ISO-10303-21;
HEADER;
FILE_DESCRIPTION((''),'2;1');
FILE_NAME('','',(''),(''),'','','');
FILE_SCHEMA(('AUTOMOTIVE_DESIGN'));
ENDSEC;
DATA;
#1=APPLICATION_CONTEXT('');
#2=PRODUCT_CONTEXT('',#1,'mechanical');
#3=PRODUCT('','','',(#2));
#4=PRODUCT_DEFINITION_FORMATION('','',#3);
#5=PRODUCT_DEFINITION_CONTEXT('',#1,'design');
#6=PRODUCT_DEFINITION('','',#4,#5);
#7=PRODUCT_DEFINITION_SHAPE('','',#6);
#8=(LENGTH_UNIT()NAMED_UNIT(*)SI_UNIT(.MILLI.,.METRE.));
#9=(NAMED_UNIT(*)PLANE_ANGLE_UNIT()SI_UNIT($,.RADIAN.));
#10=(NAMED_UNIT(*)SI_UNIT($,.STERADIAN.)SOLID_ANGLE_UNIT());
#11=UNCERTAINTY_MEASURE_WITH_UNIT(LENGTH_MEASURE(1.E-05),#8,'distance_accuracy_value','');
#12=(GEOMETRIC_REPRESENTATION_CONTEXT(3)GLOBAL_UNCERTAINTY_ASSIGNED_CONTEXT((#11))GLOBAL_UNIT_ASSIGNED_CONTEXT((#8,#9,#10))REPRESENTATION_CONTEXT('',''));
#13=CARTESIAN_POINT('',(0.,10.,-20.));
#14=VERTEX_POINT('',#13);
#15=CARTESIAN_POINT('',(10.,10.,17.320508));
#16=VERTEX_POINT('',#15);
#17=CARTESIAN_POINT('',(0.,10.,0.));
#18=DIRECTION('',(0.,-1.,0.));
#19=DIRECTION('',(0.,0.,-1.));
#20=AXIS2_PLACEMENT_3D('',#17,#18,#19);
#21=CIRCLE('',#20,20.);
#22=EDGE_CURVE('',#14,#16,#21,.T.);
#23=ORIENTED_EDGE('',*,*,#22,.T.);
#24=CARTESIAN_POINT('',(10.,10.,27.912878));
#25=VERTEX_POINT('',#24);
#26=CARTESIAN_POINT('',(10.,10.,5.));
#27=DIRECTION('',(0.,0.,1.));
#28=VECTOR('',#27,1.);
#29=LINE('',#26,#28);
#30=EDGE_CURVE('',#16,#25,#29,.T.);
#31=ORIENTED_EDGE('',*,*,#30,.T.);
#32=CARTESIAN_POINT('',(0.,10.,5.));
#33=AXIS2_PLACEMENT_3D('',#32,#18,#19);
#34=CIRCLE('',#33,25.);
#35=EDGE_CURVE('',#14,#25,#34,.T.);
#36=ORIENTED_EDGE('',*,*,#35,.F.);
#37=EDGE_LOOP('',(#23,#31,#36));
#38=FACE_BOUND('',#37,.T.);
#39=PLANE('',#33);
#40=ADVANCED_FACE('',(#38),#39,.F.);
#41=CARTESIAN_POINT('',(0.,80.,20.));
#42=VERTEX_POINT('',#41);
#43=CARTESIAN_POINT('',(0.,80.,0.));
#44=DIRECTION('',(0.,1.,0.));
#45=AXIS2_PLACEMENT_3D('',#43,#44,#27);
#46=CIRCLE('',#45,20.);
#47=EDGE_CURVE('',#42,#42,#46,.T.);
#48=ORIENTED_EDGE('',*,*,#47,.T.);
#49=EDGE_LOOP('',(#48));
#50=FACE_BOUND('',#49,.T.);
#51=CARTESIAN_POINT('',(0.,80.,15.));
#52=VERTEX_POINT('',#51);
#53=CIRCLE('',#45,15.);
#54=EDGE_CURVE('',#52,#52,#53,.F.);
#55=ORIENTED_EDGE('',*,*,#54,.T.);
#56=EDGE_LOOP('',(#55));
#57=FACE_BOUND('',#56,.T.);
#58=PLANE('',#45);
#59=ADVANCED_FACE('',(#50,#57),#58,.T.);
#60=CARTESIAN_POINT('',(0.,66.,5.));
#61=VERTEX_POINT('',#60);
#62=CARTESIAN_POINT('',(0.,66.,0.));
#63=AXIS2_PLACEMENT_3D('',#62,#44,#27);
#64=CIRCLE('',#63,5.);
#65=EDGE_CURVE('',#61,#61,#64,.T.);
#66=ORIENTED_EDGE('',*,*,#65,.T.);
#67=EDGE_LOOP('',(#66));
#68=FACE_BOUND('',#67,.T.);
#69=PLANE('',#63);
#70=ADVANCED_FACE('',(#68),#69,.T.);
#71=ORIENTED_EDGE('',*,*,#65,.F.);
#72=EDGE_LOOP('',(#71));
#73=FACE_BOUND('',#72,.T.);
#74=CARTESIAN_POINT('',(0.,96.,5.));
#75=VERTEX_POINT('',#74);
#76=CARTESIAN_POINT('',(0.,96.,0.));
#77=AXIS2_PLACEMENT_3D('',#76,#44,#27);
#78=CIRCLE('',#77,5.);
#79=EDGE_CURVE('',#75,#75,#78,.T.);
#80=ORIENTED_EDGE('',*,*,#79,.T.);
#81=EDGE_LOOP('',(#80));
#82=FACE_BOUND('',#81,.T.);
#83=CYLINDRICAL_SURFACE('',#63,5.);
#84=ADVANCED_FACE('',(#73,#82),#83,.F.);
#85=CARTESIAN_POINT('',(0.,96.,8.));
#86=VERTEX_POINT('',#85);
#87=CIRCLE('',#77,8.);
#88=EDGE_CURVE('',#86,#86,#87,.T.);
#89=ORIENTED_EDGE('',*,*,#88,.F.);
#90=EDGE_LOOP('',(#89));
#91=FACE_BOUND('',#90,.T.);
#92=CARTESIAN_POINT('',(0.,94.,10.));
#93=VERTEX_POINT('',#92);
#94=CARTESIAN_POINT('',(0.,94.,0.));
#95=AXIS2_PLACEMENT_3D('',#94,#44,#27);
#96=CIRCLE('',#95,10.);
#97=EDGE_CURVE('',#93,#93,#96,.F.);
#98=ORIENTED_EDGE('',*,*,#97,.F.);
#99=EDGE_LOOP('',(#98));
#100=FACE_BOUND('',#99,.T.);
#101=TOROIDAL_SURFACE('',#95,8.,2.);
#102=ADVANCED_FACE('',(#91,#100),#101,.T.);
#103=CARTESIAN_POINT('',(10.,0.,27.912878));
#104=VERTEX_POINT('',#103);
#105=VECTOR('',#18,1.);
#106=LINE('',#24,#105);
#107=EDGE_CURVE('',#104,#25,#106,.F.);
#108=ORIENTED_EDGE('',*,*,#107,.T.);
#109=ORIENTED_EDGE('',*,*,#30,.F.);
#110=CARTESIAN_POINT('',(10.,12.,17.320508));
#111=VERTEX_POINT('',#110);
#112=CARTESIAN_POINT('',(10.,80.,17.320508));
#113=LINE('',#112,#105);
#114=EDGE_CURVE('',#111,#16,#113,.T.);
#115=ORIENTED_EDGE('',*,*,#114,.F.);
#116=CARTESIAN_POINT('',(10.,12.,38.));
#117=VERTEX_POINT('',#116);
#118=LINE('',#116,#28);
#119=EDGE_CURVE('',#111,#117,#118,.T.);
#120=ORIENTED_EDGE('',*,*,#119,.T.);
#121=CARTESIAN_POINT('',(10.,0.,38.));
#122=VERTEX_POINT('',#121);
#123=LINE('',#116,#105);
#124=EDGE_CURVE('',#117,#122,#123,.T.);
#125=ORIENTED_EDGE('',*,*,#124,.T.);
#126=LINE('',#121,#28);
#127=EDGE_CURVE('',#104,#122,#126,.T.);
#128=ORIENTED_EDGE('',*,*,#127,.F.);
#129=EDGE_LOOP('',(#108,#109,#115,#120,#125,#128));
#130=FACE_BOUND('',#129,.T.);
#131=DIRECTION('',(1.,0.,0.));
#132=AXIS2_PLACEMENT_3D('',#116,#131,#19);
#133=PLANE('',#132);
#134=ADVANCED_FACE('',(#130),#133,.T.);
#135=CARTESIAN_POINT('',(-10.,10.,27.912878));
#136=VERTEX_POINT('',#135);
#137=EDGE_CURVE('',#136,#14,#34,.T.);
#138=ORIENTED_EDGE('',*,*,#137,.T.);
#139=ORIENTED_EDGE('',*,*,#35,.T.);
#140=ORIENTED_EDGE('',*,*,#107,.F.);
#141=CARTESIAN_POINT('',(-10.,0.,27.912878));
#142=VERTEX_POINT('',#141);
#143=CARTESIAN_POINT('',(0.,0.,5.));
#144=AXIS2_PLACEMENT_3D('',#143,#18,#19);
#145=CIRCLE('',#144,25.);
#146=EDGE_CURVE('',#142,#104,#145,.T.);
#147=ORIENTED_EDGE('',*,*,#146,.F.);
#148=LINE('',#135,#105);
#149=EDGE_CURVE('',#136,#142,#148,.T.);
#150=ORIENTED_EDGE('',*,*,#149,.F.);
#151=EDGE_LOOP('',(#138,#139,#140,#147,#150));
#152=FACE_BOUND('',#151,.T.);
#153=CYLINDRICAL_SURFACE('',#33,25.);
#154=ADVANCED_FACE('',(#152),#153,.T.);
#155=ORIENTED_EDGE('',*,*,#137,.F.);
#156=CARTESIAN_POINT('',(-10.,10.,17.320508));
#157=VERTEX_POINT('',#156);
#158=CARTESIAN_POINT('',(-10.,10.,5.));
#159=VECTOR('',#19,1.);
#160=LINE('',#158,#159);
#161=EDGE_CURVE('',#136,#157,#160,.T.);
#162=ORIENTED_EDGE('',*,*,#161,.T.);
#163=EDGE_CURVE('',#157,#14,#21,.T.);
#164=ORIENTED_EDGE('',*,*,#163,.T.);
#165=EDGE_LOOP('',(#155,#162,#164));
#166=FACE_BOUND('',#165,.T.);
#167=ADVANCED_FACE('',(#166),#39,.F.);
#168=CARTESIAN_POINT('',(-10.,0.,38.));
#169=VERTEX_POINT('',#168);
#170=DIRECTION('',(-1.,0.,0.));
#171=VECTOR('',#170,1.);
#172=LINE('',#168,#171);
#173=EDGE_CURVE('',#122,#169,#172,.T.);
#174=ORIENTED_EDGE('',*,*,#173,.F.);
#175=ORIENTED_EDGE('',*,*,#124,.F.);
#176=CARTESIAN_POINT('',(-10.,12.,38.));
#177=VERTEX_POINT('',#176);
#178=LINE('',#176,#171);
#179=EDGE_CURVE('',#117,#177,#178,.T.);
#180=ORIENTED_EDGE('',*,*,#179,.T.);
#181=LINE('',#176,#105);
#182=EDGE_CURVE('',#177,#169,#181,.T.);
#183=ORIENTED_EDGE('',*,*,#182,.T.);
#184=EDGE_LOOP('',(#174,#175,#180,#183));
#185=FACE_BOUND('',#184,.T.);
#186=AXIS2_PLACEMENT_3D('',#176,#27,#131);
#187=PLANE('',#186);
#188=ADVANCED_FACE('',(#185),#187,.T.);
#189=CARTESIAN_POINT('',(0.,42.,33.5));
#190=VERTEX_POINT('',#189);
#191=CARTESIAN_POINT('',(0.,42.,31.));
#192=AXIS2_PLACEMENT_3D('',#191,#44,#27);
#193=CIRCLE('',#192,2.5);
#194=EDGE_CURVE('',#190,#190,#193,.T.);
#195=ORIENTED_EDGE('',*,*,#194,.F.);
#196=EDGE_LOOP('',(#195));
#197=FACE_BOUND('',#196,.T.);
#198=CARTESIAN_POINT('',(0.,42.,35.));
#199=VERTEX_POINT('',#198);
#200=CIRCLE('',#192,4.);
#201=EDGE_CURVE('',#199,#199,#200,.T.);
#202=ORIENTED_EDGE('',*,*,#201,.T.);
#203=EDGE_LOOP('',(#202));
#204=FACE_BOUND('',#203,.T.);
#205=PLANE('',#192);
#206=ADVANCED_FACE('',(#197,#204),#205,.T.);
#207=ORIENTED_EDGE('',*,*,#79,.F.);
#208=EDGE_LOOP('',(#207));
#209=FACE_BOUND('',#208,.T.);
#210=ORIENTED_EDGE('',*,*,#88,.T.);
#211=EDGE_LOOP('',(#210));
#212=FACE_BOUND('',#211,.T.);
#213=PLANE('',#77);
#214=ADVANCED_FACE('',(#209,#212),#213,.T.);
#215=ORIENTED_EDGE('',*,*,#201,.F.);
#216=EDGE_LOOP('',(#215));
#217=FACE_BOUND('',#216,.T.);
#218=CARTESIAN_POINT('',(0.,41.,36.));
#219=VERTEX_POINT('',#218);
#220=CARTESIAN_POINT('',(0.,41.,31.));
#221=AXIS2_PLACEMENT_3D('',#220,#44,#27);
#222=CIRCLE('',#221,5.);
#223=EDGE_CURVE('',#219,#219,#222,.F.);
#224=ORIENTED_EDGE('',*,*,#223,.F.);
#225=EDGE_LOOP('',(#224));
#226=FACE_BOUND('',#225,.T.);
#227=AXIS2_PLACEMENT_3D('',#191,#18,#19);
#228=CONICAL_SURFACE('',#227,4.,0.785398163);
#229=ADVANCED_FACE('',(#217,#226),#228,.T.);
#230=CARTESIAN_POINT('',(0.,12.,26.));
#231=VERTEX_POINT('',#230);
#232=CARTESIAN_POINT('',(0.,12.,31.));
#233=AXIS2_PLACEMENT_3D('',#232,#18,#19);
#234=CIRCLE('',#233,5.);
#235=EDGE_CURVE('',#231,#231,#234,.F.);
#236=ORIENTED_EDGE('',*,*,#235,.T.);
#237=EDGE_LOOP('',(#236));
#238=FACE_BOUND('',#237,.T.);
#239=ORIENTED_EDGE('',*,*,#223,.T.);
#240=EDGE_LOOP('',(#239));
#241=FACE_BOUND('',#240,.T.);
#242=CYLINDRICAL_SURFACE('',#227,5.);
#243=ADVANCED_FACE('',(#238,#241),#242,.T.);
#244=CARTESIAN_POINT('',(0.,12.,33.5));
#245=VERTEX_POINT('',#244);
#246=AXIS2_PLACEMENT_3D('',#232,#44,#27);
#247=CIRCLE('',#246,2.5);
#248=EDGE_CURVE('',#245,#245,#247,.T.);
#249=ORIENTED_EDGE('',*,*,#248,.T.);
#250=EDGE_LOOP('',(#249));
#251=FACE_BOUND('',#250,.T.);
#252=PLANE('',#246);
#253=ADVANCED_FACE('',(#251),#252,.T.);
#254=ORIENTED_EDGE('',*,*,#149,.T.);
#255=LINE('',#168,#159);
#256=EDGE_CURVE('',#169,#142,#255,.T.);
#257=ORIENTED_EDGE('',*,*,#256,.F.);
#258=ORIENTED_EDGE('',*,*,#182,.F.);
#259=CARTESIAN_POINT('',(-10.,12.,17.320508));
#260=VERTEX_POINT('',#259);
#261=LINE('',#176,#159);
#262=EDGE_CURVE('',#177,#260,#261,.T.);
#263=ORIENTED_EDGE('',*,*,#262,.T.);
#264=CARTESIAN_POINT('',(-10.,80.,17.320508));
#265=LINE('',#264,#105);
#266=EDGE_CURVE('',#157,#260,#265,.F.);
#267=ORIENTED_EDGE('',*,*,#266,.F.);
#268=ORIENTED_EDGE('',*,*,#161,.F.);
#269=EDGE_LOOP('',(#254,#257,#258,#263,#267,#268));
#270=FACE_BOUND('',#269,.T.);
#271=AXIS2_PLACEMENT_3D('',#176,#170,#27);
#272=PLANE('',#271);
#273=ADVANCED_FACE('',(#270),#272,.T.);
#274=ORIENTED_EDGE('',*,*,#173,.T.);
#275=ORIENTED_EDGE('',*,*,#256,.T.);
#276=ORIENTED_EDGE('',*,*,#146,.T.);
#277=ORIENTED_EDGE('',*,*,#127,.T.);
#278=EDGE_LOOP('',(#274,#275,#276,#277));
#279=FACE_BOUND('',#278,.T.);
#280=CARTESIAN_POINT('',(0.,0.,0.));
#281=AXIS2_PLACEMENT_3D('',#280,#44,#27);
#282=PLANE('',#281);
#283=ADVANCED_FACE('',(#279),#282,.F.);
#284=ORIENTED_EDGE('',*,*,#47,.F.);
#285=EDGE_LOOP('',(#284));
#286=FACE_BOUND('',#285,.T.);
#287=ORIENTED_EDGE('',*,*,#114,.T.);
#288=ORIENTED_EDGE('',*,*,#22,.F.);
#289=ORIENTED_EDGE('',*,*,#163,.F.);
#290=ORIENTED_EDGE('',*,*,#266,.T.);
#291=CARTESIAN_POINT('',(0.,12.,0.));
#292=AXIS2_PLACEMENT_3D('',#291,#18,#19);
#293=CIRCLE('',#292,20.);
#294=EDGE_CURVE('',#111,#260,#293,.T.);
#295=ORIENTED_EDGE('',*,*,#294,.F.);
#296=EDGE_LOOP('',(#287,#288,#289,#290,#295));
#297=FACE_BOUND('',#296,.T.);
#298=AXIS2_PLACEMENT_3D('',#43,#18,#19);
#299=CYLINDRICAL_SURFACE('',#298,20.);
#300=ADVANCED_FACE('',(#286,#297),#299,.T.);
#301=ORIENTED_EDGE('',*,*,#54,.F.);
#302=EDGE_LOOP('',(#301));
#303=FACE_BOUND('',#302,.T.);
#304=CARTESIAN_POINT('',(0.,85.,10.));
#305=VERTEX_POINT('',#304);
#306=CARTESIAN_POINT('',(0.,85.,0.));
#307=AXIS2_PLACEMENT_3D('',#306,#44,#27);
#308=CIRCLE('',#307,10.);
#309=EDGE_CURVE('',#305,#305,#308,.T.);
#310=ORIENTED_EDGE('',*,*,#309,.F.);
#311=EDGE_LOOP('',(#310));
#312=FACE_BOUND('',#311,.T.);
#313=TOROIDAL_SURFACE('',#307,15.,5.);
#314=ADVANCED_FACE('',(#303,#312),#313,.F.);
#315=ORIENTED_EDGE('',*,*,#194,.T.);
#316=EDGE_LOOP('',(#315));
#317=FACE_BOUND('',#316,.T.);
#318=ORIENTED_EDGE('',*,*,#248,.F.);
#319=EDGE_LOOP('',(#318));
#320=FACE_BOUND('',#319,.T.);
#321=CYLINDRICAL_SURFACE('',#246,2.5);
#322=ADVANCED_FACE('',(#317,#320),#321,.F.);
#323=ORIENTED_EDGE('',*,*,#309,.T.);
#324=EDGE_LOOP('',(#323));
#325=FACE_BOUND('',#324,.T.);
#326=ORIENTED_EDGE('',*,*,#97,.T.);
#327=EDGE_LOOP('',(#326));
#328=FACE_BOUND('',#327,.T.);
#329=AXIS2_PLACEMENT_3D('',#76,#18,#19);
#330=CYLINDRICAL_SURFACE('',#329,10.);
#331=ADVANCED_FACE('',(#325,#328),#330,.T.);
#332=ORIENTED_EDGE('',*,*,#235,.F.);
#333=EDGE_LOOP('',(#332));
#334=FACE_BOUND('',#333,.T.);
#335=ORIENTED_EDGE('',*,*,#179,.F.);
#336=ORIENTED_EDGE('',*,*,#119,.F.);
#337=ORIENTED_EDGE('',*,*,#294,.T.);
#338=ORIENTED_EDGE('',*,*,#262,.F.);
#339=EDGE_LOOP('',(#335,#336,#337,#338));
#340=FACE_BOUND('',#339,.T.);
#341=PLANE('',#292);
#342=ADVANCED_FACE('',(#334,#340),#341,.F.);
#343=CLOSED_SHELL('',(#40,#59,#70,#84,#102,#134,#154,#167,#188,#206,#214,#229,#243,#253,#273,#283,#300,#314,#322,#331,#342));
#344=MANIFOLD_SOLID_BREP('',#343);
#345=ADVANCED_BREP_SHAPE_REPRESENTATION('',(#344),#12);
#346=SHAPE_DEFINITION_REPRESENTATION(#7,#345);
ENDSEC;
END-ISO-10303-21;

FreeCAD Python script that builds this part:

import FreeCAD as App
import Part
import Sketcher
from FreeCAD import Vector


def edges_at(feature, points):
    """Names of the edges that pass closest to the given points."""
    edges = feature.Shape.Edges
    near = lambda p: min(range(len(edges)), key=lambda i: edges[i].distToShape(Part.Vertex(*p))[0])
    return sorted({f"Edge{near(p) + 1}" for p in points})

doc = App.newDocument("Part")
body = doc.addObject("PartDesign::Body", "Body")

sketch1 = body.newObject("Sketcher::SketchObject", "Sketch")
sketch1.AttachmentSupport = (doc.getObject("XZ_Plane"), [""])
sketch1.MapMode = "FlatFace"
sketch1.addGeometry(Part.Circle(Vector(0, 0, 0), Vector(0, 0, 1), 20), False)
sketch1.addConstraint([
    Sketcher.Constraint("Coincident", 0, 3, -1, 1),
    Sketcher.Constraint("Diameter", 0, 40.0),
])
pad1 = body.newObject("PartDesign::Pad", "Pad")
pad1.Profile = sketch1
pad1.Length = 80
pad1.Reversed = True

sketch2 = body.newObject("Sketcher::SketchObject", "Sketch001")
sketch2.AttachmentSupport = (doc.getObject("XZ_Plane"), [""])
sketch2.MapMode = "FlatFace"
sketch2.AttachmentOffset = App.Placement(Vector(0, 0, -80), App.Rotation())
sketch2.addGeometry(Part.Circle(Vector(0, 0, 0), Vector(0, 0, 1), 10), False)
sketch2.addConstraint([
    Sketcher.Constraint("Coincident", 0, 3, -1, 1),
    Sketcher.Constraint("Diameter", 0, 20.0),
])
pad2 = body.newObject("PartDesign::Pad", "Pad001")
pad2.Profile = sketch2
pad2.Length = 16
pad2.Reversed = True

sketch3 = body.newObject("Sketcher::SketchObject", "Sketch002")
sketch3.AttachmentSupport = (doc.getObject("XZ_Plane"), [""])
sketch3.MapMode = "FlatFace"
sketch3.addGeometry(Part.Circle(Vector(0, 5, 0), Vector(0, 0, 1), 25), False)
sketch3.addConstraint([
    Sketcher.Constraint("PointOnObject", 0, 3, -2),
    Sketcher.Constraint("Diameter", 0, 50.0),
    Sketcher.Constraint("DistanceY", -1, 1, 0, 3, 5.0),
])
pad3 = body.newObject("PartDesign::Pad", "Pad002")
pad3.Profile = sketch3
pad3.Length = 10
pad3.Reversed = True

sketch4 = body.newObject("Sketcher::SketchObject", "Sketch003")
sketch4.AttachmentSupport = (doc.getObject("XZ_Plane"), [""])
sketch4.MapMode = "FlatFace"
sketch4.addGeometry([
    Part.LineSegment(Vector(-10, 38, 0), Vector(-10, 0, 0)),
    Part.LineSegment(Vector(-10, 0, 0), Vector(10, 0, 0)),
    Part.LineSegment(Vector(10, 0, 0), Vector(10, 38, 0)),
    Part.LineSegment(Vector(10, 38, 0), Vector(-10, 38, 0)),
], False)
sketch4.addConstraint([
    Sketcher.Constraint("Coincident", 0, 2, 1, 1),
    Sketcher.Constraint("Coincident", 1, 2, 2, 1),
    Sketcher.Constraint("Coincident", 2, 2, 3, 1),
    Sketcher.Constraint("Coincident", 3, 2, 0, 1),
    Sketcher.Constraint("Vertical", 0),
    Sketcher.Constraint("Horizontal", 1),
    Sketcher.Constraint("Vertical", 2),
    Sketcher.Constraint("Horizontal", 3),
    Sketcher.Constraint("Symmetric", 0, 2, 1, 2, -1, 1),
    Sketcher.Constraint("DistanceX", 1, 1, 1, 2, 20.0),
    Sketcher.Constraint("DistanceY", 0, 2, 0, 1, 38.0),
])
pad4 = body.newObject("PartDesign::Pad", "Pad003")
pad4.Profile = sketch4
pad4.Length = 12
pad4.Reversed = True

sketch5 = body.newObject("Sketcher::SketchObject", "Sketch004")
sketch5.AttachmentSupport = (doc.getObject("XZ_Plane"), [""])
sketch5.MapMode = "FlatFace"
sketch5.AttachmentOffset = App.Placement(Vector(0, 0, -12), App.Rotation())
sketch5.addGeometry(Part.Circle(Vector(0, 31, 0), Vector(0, 0, 1), 5), False)
sketch5.addConstraint([
    Sketcher.Constraint("PointOnObject", 0, 3, -2),
    Sketcher.Constraint("Diameter", 0, 10.0),
    Sketcher.Constraint("DistanceY", -1, 1, 0, 3, 31.0),
])
pad5 = body.newObject("PartDesign::Pad", "Pad004")
pad5.Profile = sketch5
pad5.Length = 30
pad5.Reversed = True
doc.recompute()

fillet = body.newObject("PartDesign::Fillet", "Fillet")
fillet.Base = (pad5, edges_at(pad5, [(0, 80, -10)]))
fillet.Radius = 5
doc.recompute()

fillet2 = body.newObject("PartDesign::Fillet", "Fillet001")
fillet2.Base = (fillet, edges_at(fillet, [(0, 96, -10)]))
fillet2.Radius = 2

sketch6 = body.newObject("Sketcher::SketchObject", "Sketch005")
sketch6.AttachmentSupport = (doc.getObject("XZ_Plane"), [""])
sketch6.MapMode = "FlatFace"
sketch6.AttachmentOffset = App.Placement(Vector(0, 0, -96), App.Rotation())
sketch6.addGeometry(Part.Circle(Vector(0, 0, 0), Vector(0, 0, 1), 5), False)
sketch6.addConstraint([
    Sketcher.Constraint("Coincident", 0, 3, -1, 1),
    Sketcher.Constraint("Diameter", 0, 10.0),
])
pocket1 = body.newObject("PartDesign::Pocket", "Pocket")
pocket1.Profile = sketch6
pocket1.Length = 30
pocket1.Reversed = True

sketch7 = body.newObject("Sketcher::SketchObject", "Sketch006")
sketch7.AttachmentSupport = (doc.getObject("XZ_Plane"), [""])
sketch7.MapMode = "FlatFace"
sketch7.AttachmentOffset = App.Placement(Vector(0, 0, -42), App.Rotation())
sketch7.addGeometry(Part.Circle(Vector(0, 31, 0), Vector(0, 0, 1), 2.5), False)
sketch7.addConstraint([
    Sketcher.Constraint("PointOnObject", 0, 3, -2),
    Sketcher.Constraint("Diameter", 0, 5.0),
    Sketcher.Constraint("DistanceY", -1, 1, 0, 3, 31.0),
])
pocket2 = body.newObject("PartDesign::Pocket", "Pocket001")
pocket2.Profile = sketch7
pocket2.Length = 30
pocket2.Reversed = True
doc.recompute()

chamfer = body.newObject("PartDesign::Chamfer", "Chamfer")
chamfer.Base = (pocket2, edges_at(pocket2, [(0, 42, 36)]))
chamfer.Size = 1

doc.recompute()
